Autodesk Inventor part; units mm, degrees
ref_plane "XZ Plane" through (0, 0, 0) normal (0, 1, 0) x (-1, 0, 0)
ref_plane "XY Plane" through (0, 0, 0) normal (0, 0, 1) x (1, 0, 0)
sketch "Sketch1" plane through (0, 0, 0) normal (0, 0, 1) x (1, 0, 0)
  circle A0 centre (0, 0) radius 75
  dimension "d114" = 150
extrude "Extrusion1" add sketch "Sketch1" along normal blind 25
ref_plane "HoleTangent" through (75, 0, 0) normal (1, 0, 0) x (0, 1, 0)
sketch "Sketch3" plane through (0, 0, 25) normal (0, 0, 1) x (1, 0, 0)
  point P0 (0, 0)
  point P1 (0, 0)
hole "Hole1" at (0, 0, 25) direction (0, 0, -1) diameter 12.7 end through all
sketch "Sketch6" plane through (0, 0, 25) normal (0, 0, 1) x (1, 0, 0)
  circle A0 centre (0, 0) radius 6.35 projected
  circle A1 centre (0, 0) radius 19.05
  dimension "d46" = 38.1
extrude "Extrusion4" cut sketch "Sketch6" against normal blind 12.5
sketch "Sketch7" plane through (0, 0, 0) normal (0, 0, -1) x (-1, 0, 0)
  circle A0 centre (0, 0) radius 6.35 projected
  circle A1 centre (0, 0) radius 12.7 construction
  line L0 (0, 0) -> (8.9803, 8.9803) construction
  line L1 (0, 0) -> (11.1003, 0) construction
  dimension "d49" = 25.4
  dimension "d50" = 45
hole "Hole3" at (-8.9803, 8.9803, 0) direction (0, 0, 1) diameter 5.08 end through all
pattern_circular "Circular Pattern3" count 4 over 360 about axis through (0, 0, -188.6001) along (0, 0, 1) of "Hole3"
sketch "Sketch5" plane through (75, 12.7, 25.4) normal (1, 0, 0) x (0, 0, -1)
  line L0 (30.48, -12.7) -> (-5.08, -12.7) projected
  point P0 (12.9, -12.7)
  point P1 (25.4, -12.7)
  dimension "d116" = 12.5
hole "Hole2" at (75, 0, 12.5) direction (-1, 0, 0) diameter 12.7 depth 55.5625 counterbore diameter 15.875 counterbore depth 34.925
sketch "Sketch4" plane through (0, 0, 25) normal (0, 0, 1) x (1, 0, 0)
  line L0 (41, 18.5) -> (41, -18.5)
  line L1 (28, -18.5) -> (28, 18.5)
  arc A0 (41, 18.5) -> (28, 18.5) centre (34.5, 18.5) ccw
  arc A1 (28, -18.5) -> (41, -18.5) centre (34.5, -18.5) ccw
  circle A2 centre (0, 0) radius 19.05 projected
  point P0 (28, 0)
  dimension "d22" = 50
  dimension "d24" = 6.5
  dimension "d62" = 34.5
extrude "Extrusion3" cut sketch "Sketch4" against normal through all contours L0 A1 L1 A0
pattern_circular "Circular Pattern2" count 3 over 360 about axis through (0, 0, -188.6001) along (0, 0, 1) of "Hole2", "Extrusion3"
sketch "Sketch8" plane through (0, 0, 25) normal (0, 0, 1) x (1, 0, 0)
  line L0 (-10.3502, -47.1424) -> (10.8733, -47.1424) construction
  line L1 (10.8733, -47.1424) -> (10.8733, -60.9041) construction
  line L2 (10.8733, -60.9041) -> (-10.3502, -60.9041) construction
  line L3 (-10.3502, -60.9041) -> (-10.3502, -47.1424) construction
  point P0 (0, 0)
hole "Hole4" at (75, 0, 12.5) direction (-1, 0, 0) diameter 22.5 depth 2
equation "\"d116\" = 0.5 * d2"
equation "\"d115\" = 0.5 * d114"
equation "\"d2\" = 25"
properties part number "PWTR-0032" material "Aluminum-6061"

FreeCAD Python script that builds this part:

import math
import FreeCAD as App
import Part
import Sketcher

V = App.Vector
Q = App.Units.Quantity

doc = App.newDocument("Part")
params = doc.addObject("Spreadsheet::Sheet", "Params")
for row, (alias, value) in enumerate([
    ("sketch1_diameter", "150 mm"),
    ("pad1_length", "25 mm"),
    ("sketch2_diameter", "12.7 mm"),
    ("hole_diameter", "12.7 mm"),
    ("sketch3_diameter", "38.1 mm"),
    ("sketch3_diameter2", "12.7 mm"),
    ("pocket1_length", "12.5 mm"),
    ("sketch4_diameter", "5.08 mm"),
    ("hole2_diameter", "5.08 mm"),
    ("sketch5_diameter", "12.7 mm"),
    ("hole3_diameter", "12.7 mm"),
    ("hole3_depth", "55.5625 mm"),
    ("hole3_cbore_diameter", "15.875 mm"),
    ("hole3_cbore_depth", "34.925 mm"),
    ("sketch6_radius", "6.5 mm"),
    ("sketch6_height", "37 mm"),
    ("sketch7_diameter", "22.5 mm"),
    ("hole4_diameter", "22.5 mm"),
    ("hole4_depth", "2 mm"),
], start=1):
    params.set(f"A{row}", alias)
    params.set(f"B{row}", "=" + value)
    params.setAlias(f"B{row}", alias)

body = doc.addObject("PartDesign::Body", "Body")

# Sketch on XY plane
sketch1 = body.newObject("Sketcher::SketchObject", "Sketch")
sketch1.AttachmentSupport = (doc.getObject("XY_Plane"), [""])
sketch1.MapMode = "FlatFace"
sketch1.addGeometry(Part.Circle(V(0, 0, 0), V(0, 0, 1), 75), False)
sketch1.addConstraint(Sketcher.Constraint("Coincident", 0, 3, -1, 1))
sketch1.addConstraint(Sketcher.Constraint("Diameter", 0, Q("150 mm")))
sketch1.setExpression("Constraints[1]", "Params.sketch1_diameter")
pad1 = body.newObject("PartDesign::Pad", "Pad")
pad1.Profile = sketch1
pad1.setExpression("Length", "Params.pad1_length")

# Sketch on XY plane
sketch2 = body.newObject("Sketcher::SketchObject", "Sketch001")
sketch2.AttachmentSupport = (doc.getObject("XY_Plane"), [""])
sketch2.MapMode = "FlatFace"
sketch2.AttachmentOffset = App.Placement(V(0, 0, 25), App.Rotation())
sketch2.addGeometry(Part.Circle(V(0, 0, 0), V(0, 0, 1), 6), False)
sketch2.addConstraint(Sketcher.Constraint("Coincident", 0, 3, -1, 1))
sketch2.addConstraint(Sketcher.Constraint("Diameter", 0, Q("12.7 mm")))
sketch2.setExpression("Constraints[1]", "Params.sketch2_diameter")
doc.recompute()
hole = body.newObject("PartDesign::Hole", "Hole")
hole.Profile = sketch2
hole.ThreadType = "None"
hole.setExpression("Diameter", "Params.hole_diameter")
hole.DepthType = "ThroughAll"

# Sketch on XY plane
sketch3 = body.newObject("Sketcher::SketchObject", "Sketch002")
sketch3.AttachmentSupport = (doc.getObject("XY_Plane"), [""])
sketch3.MapMode = "FlatFace"
sketch3.AttachmentOffset = App.Placement(V(0, 0, 25), App.Rotation())
sketch3.addGeometry(Part.Circle(V(0, 0, 0), V(0, 0, 1), 19), False)
sketch3.addGeometry(Part.Circle(V(0, 0, 0), V(0, 0, 1), 6), False)
sketch3.addConstraint(Sketcher.Constraint("Coincident", 0, 3, -1, 1))
sketch3.addConstraint(Sketcher.Constraint("Coincident", 1, 3, -1, 1))
sketch3.addConstraint(Sketcher.Constraint("Diameter", 0, Q("38.1 mm")))
sketch3.addConstraint(Sketcher.Constraint("Diameter", 1, Q("12.7 mm")))
sketch3.setExpression("Constraints[2]", "Params.sketch3_diameter")
sketch3.setExpression("Constraints[3]", "Params.sketch3_diameter2")
pocket1 = body.newObject("PartDesign::Pocket", "Pocket")
pocket1.Profile = sketch3
pocket1.setExpression("Length", "Params.pocket1_length")

# Sketch on XY plane
sketch4 = body.newObject("Sketcher::SketchObject", "Sketch003")
sketch4.AttachmentSupport = (doc.getObject("XY_Plane"), [""])
sketch4.MapMode = "FlatFace"
sketch4.addGeometry(Part.Circle(V(-9, 9, 0), V(0, 0, 1), 2.5), False)
sketch4.addConstraint(Sketcher.Constraint("Diameter", 0, Q("5.08 mm")))
sketch4.addConstraint(Sketcher.Constraint("DistanceX", 0, 3, -1, 1, Q("8.9803 mm")))
sketch4.addConstraint(Sketcher.Constraint("DistanceY", -1, 1, 0, 3, Q("8.9803 mm")))
sketch4.setExpression("Constraints[0]", "Params.sketch4_diameter")
doc.recompute()
hole2 = body.newObject("PartDesign::Hole", "Hole001")
hole2.Profile = sketch4
hole2.ThreadType = "None"
hole2.setExpression("Diameter", "Params.hole2_diameter")
hole2.DepthType = "ThroughAll"
hole2.Reversed = True
doc.recompute()

polarpattern = body.newObject("PartDesign::PolarPattern", "PolarPattern")
polarpattern.Originals = [hole2]
polarpattern.Axis = (doc.getObject("Z_Axis"), [""])
polarpattern.Angle = 360
polarpattern.Occurrences = 4
body.Tip = polarpattern

# Sketch on YZ plane
sketch5 = body.newObject("Sketcher::SketchObject", "Sketch004")
sketch5.AttachmentSupport = (doc.getObject("YZ_Plane"), [""])
sketch5.MapMode = "FlatFace"
sketch5.AttachmentOffset = App.Placement(V(0, 0, 75), App.Rotation())
sketch5.addGeometry(Part.Circle(V(0, 12, 0), V(0, 0, 1), 6), False)
sketch5.addConstraint(Sketcher.Constraint("PointOnObject", 0, 3, -2))
sketch5.addConstraint(Sketcher.Constraint("Diameter", 0, Q("12.7 mm")))
sketch5.addConstraint(Sketcher.Constraint("DistanceY", -1, 1, 0, 3, Q("12.5 mm")))
sketch5.setExpression("Constraints[1]", "Params.sketch5_diameter")
doc.recompute()
hole3 = body.newObject("PartDesign::Hole", "Hole002")
hole3.Profile = sketch5
hole3.ThreadType = "None"
hole3.setExpression("Diameter", "Params.hole3_diameter")
hole3.DepthType = "Dimension"
hole3.setExpression("Depth", "Params.hole3_depth")
hole3.DrillPoint = "Flat"
hole3.HoleCutType = "Counterbore"
hole3.setExpression("HoleCutDiameter", "Params.hole3_cbore_diameter")
hole3.setExpression("HoleCutDepth", "Params.hole3_cbore_depth")

# Sketch on XY plane
sketch6 = body.newObject("Sketcher::SketchObject", "Sketch005")
sketch6.AttachmentSupport = (doc.getObject("XY_Plane"), [""])
sketch6.MapMode = "FlatFace"
sketch6.AttachmentOffset = App.Placement(V(0, 0, 25), App.Rotation())
sketch6.addGeometry(Part.LineSegment(V(41, -18, 0), V(41, 18, 0)), False)
sketch6.addGeometry(Part.ArcOfCircle(Part.Circle(V(34, 18, 0), V(0, 0, 1), 6), math.radians(0), math.radians(180)), False)
sketch6.addGeometry(Part.LineSegment(V(28, 18, 0), V(28, -18, 0)), False)
sketch6.addGeometry(Part.ArcOfCircle(Part.Circle(V(34, -18, 0), V(0, 0, 1), 6), math.radians(180), math.radians(360)), False)
sketch6.addConstraint(Sketcher.Constraint("Tangent", 0, 2, 1, 1))
sketch6.addConstraint(Sketcher.Constraint("Tangent", 1, 2, 2, 1))
sketch6.addConstraint(Sketcher.Constraint("Tangent", 2, 2, 3, 1))
sketch6.addConstraint(Sketcher.Constraint("Tangent", 3, 2, 0, 1))
sketch6.addConstraint(Sketcher.Constraint("Vertical", 0))
sketch6.addConstraint(Sketcher.Constraint("Vertical", 2))
sketch6.addConstraint(Sketcher.Constraint("Radius", 1, Q("6.5 mm")))
sketch6.addConstraint(Sketcher.Constraint("DistanceX", -1, 1, 1, 3, Q("34.5 mm")))
sketch6.addConstraint(Sketcher.Constraint("DistanceY", 0, 1, 0, 2, Q("37 mm")))
sketch6.addConstraint(Sketcher.Constraint("DistanceY", -1, 1, 1, 3, Q("18.5 mm")))
sketch6.setExpression("Constraints[6]", "Params.sketch6_radius")
sketch6.setExpression("Constraints[8]", "Params.sketch6_height")
pocket2 = body.newObject("PartDesign::Pocket", "Pocket001")
pocket2.Profile = sketch6
pocket2.Type = "ThroughAll"
doc.recompute()

polarpattern2 = body.newObject("PartDesign::PolarPattern", "PolarPattern001")
polarpattern2.Originals = [hole3, pocket2]
polarpattern2.Axis = (doc.getObject("Z_Axis"), [""])
polarpattern2.Angle = 360
polarpattern2.Occurrences = 3
body.Tip = polarpattern2

# Sketch on YZ plane
sketch7 = body.newObject("Sketcher::SketchObject", "Sketch006")
sketch7.AttachmentSupport = (doc.getObject("YZ_Plane"), [""])
sketch7.MapMode = "FlatFace"
sketch7.AttachmentOffset = App.Placement(V(0, 0, 75), App.Rotation())
sketch7.addGeometry(Part.Circle(V(0, 12, 0), V(0, 0, 1), 11), False)
sketch7.addConstraint(Sketcher.Constraint("PointOnObject", 0, 3, -2))
sketch7.addConstraint(Sketcher.Constraint("Diameter", 0, Q("22.5 mm")))
sketch7.addConstraint(Sketcher.Constraint("DistanceY", -1, 1, 0, 3, Q("12.5 mm")))
sketch7.setExpression("Constraints[1]", "Params.sketch7_diameter")
doc.recompute()
hole4 = body.newObject("PartDesign::Hole", "Hole003")
hole4.Profile = sketch7
hole4.ThreadType = "None"
hole4.setExpression("Diameter", "Params.hole4_diameter")
hole4.DepthType = "Dimension"
hole4.setExpression("Depth", "Params.hole4_depth")
hole4.DrillPoint = "Flat"

doc.recompute()
